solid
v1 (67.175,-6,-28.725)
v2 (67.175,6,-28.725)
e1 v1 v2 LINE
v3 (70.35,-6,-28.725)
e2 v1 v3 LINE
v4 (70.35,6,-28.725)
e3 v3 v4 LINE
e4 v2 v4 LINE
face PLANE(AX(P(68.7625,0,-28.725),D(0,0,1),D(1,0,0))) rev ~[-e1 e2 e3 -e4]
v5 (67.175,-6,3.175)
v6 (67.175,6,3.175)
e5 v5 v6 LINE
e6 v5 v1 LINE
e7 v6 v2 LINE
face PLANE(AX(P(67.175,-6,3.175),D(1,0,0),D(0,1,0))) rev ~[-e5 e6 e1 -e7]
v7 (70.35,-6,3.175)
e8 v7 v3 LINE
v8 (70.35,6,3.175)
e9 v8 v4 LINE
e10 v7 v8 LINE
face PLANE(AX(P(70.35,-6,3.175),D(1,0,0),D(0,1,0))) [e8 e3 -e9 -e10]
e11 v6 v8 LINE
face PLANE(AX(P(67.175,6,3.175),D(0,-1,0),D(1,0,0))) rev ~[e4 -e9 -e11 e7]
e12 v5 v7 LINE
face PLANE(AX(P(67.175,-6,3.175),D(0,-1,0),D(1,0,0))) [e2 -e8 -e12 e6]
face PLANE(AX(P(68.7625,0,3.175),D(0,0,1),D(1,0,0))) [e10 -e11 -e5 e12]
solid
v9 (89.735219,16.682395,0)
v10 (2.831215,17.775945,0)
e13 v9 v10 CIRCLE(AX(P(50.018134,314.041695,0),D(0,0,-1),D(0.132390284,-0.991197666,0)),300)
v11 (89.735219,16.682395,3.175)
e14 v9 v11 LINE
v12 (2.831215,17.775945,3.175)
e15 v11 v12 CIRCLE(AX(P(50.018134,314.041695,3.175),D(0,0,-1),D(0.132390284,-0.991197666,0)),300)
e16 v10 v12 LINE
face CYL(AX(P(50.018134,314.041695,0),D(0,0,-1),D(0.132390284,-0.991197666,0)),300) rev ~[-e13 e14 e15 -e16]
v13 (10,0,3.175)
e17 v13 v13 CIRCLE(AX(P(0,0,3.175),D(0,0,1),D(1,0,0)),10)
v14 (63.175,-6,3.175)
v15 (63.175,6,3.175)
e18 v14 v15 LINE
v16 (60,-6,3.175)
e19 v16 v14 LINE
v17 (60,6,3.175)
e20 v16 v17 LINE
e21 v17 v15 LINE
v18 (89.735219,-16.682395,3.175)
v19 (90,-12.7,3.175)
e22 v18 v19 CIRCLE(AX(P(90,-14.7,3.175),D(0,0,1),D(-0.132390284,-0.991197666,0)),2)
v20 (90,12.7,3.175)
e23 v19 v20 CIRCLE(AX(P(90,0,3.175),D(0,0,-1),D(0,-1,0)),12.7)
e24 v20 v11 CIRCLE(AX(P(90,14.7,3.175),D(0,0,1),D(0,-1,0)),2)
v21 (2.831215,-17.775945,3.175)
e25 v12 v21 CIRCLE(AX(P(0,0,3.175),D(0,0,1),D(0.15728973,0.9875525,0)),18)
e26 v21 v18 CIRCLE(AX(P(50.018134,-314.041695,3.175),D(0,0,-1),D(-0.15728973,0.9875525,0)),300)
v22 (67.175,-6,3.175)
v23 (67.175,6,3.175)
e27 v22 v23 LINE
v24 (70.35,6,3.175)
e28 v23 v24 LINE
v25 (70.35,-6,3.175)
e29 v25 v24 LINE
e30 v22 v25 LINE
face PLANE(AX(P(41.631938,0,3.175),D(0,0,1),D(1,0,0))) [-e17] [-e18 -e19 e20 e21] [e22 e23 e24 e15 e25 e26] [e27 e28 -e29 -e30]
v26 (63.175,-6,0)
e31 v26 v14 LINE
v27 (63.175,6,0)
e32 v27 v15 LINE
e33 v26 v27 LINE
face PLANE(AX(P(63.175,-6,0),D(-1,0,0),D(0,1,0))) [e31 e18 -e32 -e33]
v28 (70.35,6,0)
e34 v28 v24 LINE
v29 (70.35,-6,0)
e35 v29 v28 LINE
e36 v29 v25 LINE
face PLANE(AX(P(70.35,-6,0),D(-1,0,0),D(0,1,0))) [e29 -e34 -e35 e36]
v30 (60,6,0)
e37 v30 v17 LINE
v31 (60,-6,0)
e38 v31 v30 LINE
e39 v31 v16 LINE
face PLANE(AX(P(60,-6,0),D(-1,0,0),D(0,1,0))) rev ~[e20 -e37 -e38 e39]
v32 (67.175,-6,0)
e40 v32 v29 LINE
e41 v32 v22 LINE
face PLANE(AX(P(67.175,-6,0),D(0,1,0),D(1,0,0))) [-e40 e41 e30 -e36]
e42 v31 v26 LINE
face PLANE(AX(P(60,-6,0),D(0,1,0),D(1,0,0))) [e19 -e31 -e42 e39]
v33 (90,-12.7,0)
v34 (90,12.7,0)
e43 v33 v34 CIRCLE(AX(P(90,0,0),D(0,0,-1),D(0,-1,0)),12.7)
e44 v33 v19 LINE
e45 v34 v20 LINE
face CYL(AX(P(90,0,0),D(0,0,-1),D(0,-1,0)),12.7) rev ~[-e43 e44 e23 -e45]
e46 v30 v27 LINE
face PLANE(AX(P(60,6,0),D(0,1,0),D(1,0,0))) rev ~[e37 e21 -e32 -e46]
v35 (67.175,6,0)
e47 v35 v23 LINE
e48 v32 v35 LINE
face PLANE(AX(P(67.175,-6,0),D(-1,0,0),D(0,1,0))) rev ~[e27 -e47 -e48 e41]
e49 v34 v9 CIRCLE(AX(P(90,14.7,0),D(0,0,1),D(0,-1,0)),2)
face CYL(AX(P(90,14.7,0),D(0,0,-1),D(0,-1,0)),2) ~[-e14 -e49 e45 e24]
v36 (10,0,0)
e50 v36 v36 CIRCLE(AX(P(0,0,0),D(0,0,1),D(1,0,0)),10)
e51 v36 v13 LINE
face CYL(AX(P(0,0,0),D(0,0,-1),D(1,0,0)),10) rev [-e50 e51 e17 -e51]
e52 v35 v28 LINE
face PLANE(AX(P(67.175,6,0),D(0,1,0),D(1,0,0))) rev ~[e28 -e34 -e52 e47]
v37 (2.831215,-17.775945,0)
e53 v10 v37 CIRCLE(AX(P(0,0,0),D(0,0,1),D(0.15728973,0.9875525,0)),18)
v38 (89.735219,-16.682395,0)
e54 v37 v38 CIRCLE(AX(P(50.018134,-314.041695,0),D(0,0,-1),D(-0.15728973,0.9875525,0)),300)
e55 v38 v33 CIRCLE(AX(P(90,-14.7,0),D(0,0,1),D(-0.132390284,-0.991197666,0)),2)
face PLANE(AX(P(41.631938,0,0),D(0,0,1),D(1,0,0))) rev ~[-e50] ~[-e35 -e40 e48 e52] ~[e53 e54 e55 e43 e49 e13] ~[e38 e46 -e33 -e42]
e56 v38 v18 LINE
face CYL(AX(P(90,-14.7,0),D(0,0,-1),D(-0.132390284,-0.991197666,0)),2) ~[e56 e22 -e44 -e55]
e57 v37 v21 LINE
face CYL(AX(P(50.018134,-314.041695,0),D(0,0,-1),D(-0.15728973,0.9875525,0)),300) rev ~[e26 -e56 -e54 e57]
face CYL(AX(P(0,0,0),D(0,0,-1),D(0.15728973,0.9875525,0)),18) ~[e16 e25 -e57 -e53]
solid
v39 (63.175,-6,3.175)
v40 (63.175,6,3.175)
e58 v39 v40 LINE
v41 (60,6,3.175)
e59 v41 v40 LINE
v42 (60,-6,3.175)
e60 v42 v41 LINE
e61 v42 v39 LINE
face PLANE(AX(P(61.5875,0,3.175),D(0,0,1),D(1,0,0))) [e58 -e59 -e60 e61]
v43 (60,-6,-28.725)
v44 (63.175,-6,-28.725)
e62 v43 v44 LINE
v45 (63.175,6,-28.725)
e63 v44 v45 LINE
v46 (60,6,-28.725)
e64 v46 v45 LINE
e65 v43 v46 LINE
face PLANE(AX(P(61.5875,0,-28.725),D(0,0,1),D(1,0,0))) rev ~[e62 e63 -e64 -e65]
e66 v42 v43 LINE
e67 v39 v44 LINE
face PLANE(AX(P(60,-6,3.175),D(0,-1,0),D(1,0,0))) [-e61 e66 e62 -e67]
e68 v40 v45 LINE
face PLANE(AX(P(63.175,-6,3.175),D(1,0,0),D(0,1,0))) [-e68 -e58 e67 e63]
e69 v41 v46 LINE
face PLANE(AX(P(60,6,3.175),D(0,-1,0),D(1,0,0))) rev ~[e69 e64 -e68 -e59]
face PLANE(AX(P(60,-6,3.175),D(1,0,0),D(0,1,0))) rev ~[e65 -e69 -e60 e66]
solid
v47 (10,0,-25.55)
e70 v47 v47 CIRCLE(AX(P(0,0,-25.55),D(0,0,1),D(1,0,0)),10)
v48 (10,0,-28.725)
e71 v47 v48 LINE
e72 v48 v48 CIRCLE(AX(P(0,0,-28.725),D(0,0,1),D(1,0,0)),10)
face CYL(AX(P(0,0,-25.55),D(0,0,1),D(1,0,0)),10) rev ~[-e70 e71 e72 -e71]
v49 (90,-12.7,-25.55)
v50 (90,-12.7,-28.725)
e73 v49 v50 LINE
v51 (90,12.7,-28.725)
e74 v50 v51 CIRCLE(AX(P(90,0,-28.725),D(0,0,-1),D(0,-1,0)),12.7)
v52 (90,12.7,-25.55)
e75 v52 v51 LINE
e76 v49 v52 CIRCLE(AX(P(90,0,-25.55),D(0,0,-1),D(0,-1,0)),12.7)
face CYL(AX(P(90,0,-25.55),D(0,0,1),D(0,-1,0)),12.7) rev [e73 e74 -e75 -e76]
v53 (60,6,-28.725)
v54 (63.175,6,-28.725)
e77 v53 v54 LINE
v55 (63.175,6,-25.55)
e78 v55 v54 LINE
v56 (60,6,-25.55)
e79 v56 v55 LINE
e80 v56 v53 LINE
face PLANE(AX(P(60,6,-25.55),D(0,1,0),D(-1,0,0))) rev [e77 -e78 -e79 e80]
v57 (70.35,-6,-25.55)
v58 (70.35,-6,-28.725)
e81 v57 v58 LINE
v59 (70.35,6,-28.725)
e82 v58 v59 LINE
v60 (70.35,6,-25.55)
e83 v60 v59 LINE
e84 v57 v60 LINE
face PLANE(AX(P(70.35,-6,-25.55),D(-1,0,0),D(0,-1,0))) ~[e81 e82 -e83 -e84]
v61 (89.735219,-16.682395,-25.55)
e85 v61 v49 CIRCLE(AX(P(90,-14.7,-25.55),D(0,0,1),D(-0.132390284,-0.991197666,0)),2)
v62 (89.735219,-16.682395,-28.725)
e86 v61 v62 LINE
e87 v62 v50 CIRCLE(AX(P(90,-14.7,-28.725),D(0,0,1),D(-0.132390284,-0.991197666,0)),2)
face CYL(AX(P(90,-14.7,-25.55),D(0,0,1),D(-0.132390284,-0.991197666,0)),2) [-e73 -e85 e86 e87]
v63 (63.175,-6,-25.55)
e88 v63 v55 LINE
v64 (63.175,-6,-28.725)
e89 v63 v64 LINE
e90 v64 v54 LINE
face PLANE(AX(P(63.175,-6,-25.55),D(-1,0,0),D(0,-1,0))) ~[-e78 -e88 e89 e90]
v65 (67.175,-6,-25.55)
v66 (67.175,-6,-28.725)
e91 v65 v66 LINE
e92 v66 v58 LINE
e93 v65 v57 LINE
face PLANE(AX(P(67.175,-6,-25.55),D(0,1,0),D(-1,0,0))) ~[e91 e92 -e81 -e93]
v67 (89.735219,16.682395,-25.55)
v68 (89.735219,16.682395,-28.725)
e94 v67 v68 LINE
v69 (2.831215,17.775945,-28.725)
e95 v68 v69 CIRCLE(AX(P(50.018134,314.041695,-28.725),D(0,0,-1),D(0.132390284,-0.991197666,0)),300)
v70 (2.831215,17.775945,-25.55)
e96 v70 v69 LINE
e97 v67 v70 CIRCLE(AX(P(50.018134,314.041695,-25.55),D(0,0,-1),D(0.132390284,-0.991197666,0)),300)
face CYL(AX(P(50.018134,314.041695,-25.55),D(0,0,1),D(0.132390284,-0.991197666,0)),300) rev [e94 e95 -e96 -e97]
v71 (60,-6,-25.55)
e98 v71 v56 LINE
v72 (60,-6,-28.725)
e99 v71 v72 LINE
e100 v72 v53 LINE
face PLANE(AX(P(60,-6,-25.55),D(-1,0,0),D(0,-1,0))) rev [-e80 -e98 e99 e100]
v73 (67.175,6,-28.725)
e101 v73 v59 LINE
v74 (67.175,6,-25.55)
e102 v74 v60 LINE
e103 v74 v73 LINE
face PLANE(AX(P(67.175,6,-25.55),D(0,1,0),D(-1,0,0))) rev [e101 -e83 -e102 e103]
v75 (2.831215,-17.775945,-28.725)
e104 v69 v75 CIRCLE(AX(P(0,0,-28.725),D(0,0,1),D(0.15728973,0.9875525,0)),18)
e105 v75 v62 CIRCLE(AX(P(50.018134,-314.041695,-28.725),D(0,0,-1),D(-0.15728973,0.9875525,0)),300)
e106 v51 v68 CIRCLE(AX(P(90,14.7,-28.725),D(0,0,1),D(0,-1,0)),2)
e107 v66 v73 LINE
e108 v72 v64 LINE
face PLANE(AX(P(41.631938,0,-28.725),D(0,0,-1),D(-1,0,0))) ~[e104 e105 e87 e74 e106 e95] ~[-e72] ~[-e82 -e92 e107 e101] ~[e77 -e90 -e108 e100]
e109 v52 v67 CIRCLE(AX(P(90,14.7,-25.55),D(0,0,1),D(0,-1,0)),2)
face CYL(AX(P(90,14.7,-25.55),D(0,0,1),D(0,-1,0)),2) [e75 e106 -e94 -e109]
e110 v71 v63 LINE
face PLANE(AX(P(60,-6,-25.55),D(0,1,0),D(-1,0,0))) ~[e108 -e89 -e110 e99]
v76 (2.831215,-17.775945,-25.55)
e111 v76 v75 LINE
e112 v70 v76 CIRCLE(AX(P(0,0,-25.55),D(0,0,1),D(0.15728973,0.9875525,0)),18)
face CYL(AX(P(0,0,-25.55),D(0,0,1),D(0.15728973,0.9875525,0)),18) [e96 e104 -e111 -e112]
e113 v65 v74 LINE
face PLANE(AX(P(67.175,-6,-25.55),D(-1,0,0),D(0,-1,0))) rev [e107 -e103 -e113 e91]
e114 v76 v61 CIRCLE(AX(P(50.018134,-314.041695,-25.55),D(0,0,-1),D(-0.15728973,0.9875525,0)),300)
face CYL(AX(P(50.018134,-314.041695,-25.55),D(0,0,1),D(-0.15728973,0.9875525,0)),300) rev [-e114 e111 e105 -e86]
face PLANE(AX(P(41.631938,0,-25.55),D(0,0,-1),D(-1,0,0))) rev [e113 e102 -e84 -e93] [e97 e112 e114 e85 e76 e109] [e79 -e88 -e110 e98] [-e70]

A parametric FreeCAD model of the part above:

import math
import FreeCAD as App
import Part
import Sketcher

V = App.Vector


def add_polygon(sketch, points):
    """Adds a closed chain of lines whose ends are joined by coincident constraints."""
    first, n = sketch.GeometryCount, len(points)
    for a, b in zip(points, points[1:] + points[:1]):
        sketch.addGeometry(Part.LineSegment(App.Vector(*a, 0), App.Vector(*b, 0)), False)
    for i in range(n):
        sketch.addConstraint(Sketcher.Constraint("Coincident", first + i, 2, first + (i + 1) % n, 1))

doc = App.newDocument("Part")
body = doc.addObject("PartDesign::Body", "Body")

sketch1 = doc.addObject("Sketcher::SketchObject", "Sketch")
body.addObject(sketch1)
sketch1.AttachmentSupport = (doc.XY_Plane, [""])
sketch1.MapMode = "FlatFace"
sketch1.addGeometry(Part.ArcOfCircle(Part.Circle(V(0, 0, 0), V(0, 0, 1), 18), math.radians(81), math.radians(279)), False)
sketch1.addGeometry(Part.ArcOfCircle(Part.Circle(V(50, -314, 0), V(0, 0, 1), 300), math.radians(82.39), math.radians(99.05)), False)
sketch1.addGeometry(Part.ArcOfCircle(Part.Circle(V(90, -14.7, 0), V(0, 0, 1), 2), math.radians(-98), math.radians(90)), False)
sketch1.addGeometry(Part.ArcOfCircle(Part.Circle(V(90, 0, 0), V(0, 0, 1), 12.7), math.radians(90), math.radians(270)), False)
sketch1.addGeometry(Part.ArcOfCircle(Part.Circle(V(90, 14.7, 0), V(0, 0, 1), 2), math.radians(-90), math.radians(98)), False)
sketch1.addGeometry(Part.ArcOfCircle(Part.Circle(V(50, 314, 0), V(0, 0, 1), 300), math.radians(-99.05), math.radians(-82.39)), False)
sketch1.addGeometry(Part.Circle(V(0, 0, 0), V(0, 0, 1), 10), False)
add_polygon(sketch1, [(63.2, -6), (60, -6), (60, 6), (63.2, 6)])
add_polygon(sketch1, [(70.3, -6), (67.2, -6), (67.2, 6), (70.3, 6)])
sketch1.addConstraint(Sketcher.Constraint("Tangent", 0, 2, 1, 2))
sketch1.addConstraint(Sketcher.Constraint("Tangent", 1, 1, 2, 1))
sketch1.addConstraint(Sketcher.Constraint("Tangent", 2, 2, 3, 2))
sketch1.addConstraint(Sketcher.Constraint("Tangent", 3, 1, 4, 1))
sketch1.addConstraint(Sketcher.Constraint("Tangent", 4, 2, 5, 2))
sketch1.addConstraint(Sketcher.Constraint("Tangent", 5, 1, 0, 1))
sketch1.addConstraint(Sketcher.Constraint("Horizontal", 7))
sketch1.addConstraint(Sketcher.Constraint("Vertical", 8))
sketch1.addConstraint(Sketcher.Constraint("Horizontal", 9))
sketch1.addConstraint(Sketcher.Constraint("Vertical", 10))
sketch1.addConstraint(Sketcher.Constraint("Horizontal", 11))
sketch1.addConstraint(Sketcher.Constraint("Vertical", 12))
sketch1.addConstraint(Sketcher.Constraint("Horizontal", 13))
sketch1.addConstraint(Sketcher.Constraint("Vertical", 14))
sketch1.addConstraint(Sketcher.Constraint("Coincident", 0, 3, -1, 1))
sketch1.addConstraint(Sketcher.Constraint("Coincident", 6, 3, -1, 1))
sketch1.addConstraint(Sketcher.Constraint("Equal", 2, 4))
sketch1.addConstraint(Sketcher.Constraint("Equal", 1, 5))
sketch1.addConstraint(Sketcher.Constraint("Symmetric", 2, 3, 4, 3, -1))
sketch1.addConstraint(Sketcher.Constraint("Horizontal", 10, 2, 11, 2))
sketch1.addConstraint(Sketcher.Constraint("Horizontal", 9, 2, 12, 2))
sketch1.addConstraint(Sketcher.Constraint("Vertical", 2, 3, 3, 3))
sketch1.addConstraint(Sketcher.Constraint("Equal", 9, 11))
sketch1.addConstraint(Sketcher.Constraint("Diameter", 6, 20.0))
sketch1.addConstraint(Sketcher.Constraint("Radius", 0, 18.0))
sketch1.addConstraint(Sketcher.Constraint("Radius", 1, 300.0))
sketch1.addConstraint(Sketcher.Constraint("Radius", 2, 2.0))
sketch1.addConstraint(Sketcher.Constraint("Radius", 3, 12.7))
sketch1.addConstraint(Sketcher.Constraint("DistanceY", 8, 1, 8, 2, 12.0))
sketch1.addConstraint(Sketcher.Constraint("DistanceX", -1, 1, 2, 3, 90.0))
sketch1.addConstraint(Sketcher.Constraint("DistanceX", -1, 1, 7, 2, 60.0))
sketch1.addConstraint(Sketcher.Constraint("DistanceY", 7, 2, -1, 1, 6.0))
sketch1.addConstraint(Sketcher.Constraint("DistanceX", 10, 2, 11, 2, 4.0))
sketch1.addConstraint(Sketcher.Constraint("DistanceX", 7, 2, 7, 1, 3.175))
pad1 = doc.addObject("PartDesign::Pad", "Pad")
body.addObject(pad1)
pad1.Profile = sketch1
pad1.Length = 3.175
body2 = doc.addObject("PartDesign::Body", "Body001")
doc.recompute()

mirroring = doc.addObject("Part::Mirroring", "Mirroring")
mirroring.Source = body
mirroring.Base = V(0, 0, -12.775)
mirroring.Normal = V(0, 0, -1)
body2.BaseFeature = mirroring
doc.recompute()
body3 = doc.addObject("PartDesign::Body", "Body002")

sketch2 = doc.addObject("Sketcher::SketchObject", "Sketch001")
body3.addObject(sketch2)
sketch2.AttachmentSupport = (doc.getObject("XY_Plane002"), [""])
sketch2.MapMode = "FlatFace"
sketch2.AttachmentOffset = App.Placement(V(0, 0, 3.175), App.Rotation())
add_polygon(sketch2, [(60, 6), (60, -6), (63.2, -6), (63.2, 6)])
sketch2.addConstraint(Sketcher.Constraint("Vertical", 0))
sketch2.addConstraint(Sketcher.Constraint("Horizontal", 1))
sketch2.addConstraint(Sketcher.Constraint("Vertical", 2))
sketch2.addConstraint(Sketcher.Constraint("Horizontal", 3))
sketch2.addConstraint(Sketcher.Constraint("DistanceY", 0, 2, 0, 1, 12.0))
sketch2.addConstraint(Sketcher.Constraint("DistanceX", -1, 1, 0, 2, 60.0))
sketch2.addConstraint(Sketcher.Constraint("DistanceY", 0, 2, -1, 1, 6.0))
sketch2.addConstraint(Sketcher.Constraint("DistanceX", 1, 1, 1, 2, 3.175))
pad2 = doc.addObject("PartDesign::Pad", "Pad001")
body3.addObject(pad2)
pad2.Profile = sketch2
pad2.Length = 31.9
pad2.Reversed = True
body4 = doc.addObject("PartDesign::Body", "Body003")

sketch3 = doc.addObject("Sketcher::SketchObject", "Sketch002")
body4.addObject(sketch3)
sketch3.AttachmentSupport = (doc.getObject("XY_Plane003"), [""])
sketch3.MapMode = "FlatFace"
sketch3.AttachmentOffset = App.Placement(V(0, 0, 3.175), App.Rotation())
add_polygon(sketch3, [(67.2, 6), (67.2, -6), (70.3, -6), (70.3, 6)])
sketch3.addConstraint(Sketcher.Constraint("Vertical", 0))
sketch3.addConstraint(Sketcher.Constraint("Horizontal", 1))
sketch3.addConstraint(Sketcher.Constraint("Vertical", 2))
sketch3.addConstraint(Sketcher.Constraint("Horizontal", 3))
sketch3.addConstraint(Sketcher.Constraint("DistanceY", 0, 2, 0, 1, 12.0))
sketch3.addConstraint(Sketcher.Constraint("DistanceY", 0, 2, -1, 1, 6.0))
sketch3.addConstraint(Sketcher.Constraint("DistanceX", 1, 1, 1, 2, 3.175))
sketch3.addConstraint(Sketcher.Constraint("DistanceX", -1, 1, 1, 2, 70.35))
pad3 = doc.addObject("PartDesign::Pad", "Pad002")
body4.addObject(pad3)
pad3.Profile = sketch3
pad3.Length = 31.9
pad3.Reversed = True
mirroring.Visibility = False

doc.recompute()
